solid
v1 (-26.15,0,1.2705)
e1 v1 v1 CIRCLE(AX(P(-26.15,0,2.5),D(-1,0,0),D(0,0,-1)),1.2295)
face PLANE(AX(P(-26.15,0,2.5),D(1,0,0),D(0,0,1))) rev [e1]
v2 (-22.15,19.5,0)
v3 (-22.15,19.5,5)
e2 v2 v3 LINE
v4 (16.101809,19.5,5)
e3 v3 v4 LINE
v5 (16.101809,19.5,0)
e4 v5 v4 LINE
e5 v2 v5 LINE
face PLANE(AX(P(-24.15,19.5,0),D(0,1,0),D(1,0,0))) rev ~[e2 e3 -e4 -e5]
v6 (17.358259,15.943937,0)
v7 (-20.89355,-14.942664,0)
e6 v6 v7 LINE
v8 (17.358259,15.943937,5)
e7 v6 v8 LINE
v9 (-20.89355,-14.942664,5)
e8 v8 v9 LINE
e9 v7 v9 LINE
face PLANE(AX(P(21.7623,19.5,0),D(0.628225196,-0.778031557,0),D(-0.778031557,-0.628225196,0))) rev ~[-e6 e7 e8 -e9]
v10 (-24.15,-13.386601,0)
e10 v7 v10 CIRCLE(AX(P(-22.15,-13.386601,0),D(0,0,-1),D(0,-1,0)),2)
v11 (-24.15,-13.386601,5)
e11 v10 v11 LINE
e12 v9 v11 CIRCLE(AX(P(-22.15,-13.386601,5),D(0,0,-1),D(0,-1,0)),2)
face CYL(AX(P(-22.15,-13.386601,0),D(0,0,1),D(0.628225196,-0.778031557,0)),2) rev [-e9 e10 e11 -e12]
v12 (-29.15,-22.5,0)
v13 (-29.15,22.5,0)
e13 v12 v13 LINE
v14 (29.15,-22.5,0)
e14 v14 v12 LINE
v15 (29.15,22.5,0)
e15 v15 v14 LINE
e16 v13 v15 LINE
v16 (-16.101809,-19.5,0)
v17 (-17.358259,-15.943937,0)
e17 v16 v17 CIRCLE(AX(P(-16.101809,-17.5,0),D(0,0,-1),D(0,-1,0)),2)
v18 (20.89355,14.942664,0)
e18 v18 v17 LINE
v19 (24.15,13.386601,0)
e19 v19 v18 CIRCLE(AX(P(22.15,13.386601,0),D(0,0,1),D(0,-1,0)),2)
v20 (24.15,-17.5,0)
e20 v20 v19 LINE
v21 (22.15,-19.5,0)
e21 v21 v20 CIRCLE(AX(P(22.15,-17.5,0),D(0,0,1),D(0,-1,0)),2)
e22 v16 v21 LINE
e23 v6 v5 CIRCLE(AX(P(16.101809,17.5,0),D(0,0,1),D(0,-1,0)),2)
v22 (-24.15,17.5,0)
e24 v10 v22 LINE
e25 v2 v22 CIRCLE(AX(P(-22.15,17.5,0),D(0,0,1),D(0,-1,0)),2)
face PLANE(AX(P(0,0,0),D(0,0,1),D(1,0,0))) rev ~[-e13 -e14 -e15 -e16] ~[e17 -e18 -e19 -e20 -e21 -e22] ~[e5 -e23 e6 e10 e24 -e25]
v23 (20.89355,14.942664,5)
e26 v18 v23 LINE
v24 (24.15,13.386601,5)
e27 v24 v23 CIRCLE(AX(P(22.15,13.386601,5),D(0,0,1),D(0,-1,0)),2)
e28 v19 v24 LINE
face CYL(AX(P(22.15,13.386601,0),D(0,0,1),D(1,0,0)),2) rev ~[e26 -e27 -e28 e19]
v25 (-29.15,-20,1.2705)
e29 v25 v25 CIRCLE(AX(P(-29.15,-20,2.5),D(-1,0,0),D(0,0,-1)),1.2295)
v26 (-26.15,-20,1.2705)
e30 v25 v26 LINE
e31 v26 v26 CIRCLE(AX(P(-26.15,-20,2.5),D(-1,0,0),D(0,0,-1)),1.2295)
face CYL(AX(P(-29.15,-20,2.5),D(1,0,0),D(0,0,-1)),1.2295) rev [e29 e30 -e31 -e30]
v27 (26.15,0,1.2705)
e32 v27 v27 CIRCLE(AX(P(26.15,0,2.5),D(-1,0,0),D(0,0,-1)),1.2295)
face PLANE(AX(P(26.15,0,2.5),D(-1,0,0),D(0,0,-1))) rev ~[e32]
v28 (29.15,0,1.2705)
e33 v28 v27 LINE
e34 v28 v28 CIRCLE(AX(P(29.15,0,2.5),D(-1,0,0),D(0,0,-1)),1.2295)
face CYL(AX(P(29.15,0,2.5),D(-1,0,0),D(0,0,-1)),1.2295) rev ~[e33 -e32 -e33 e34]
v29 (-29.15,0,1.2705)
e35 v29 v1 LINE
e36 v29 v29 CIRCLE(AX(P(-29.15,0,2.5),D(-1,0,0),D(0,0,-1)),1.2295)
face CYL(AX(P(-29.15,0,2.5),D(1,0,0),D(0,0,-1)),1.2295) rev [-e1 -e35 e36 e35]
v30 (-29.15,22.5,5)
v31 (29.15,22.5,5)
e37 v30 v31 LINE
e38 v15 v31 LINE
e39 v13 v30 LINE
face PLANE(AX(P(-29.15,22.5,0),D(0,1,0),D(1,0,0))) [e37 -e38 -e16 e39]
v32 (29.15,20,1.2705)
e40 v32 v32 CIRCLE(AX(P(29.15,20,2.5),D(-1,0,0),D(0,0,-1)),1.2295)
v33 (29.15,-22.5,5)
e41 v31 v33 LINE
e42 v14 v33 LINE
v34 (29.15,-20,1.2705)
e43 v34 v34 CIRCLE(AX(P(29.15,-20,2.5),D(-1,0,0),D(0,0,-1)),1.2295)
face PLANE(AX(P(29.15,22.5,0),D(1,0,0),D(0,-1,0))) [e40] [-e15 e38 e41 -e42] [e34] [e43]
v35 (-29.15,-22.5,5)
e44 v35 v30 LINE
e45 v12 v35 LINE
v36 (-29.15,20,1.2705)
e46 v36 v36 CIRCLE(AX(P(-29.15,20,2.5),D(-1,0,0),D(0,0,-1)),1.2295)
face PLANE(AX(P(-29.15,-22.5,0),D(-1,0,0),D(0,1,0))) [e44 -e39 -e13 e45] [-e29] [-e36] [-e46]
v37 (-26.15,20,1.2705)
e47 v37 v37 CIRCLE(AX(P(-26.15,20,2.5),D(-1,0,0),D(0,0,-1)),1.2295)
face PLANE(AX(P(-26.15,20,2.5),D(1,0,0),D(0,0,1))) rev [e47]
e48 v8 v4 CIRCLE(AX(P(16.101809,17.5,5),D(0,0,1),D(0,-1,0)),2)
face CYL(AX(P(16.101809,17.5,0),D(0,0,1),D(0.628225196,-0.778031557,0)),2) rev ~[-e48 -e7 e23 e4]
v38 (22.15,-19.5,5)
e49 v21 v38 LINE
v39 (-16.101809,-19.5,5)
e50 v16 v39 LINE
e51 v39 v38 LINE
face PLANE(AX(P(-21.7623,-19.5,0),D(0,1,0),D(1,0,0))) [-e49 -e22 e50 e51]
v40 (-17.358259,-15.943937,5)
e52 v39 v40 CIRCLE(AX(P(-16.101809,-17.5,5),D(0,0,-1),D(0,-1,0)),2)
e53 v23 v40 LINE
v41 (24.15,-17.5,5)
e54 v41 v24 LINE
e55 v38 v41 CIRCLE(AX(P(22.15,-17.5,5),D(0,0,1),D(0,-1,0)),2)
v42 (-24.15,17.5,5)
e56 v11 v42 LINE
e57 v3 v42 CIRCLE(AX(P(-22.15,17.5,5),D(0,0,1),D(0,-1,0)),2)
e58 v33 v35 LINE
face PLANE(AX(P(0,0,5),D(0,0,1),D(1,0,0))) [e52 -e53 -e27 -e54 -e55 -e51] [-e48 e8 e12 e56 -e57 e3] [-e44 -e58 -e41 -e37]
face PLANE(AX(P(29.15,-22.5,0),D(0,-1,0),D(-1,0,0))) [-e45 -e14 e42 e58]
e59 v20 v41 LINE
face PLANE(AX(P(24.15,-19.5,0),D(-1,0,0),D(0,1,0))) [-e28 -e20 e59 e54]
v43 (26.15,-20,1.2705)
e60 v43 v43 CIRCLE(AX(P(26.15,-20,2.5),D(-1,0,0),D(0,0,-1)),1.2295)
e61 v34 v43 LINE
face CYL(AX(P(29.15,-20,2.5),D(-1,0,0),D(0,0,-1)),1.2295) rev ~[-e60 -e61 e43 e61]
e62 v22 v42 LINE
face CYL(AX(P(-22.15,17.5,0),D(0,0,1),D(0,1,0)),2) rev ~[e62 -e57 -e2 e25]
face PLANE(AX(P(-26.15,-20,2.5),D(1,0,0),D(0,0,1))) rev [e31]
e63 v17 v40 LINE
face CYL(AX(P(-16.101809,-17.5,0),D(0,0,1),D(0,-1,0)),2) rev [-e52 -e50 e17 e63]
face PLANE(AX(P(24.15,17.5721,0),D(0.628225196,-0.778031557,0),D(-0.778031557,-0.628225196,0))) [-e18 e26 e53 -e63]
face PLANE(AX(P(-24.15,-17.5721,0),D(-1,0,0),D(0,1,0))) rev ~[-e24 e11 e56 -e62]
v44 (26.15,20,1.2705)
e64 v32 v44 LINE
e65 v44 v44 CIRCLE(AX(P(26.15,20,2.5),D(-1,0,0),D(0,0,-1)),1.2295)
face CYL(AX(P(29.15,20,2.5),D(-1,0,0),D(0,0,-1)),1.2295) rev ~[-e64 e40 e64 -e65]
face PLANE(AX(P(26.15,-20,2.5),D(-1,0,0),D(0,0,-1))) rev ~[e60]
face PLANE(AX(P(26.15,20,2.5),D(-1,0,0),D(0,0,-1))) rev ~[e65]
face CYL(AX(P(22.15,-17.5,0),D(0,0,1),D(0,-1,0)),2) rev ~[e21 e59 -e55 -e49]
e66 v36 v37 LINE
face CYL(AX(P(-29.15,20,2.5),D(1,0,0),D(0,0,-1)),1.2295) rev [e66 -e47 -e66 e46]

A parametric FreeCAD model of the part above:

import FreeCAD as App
import Part
import Sketcher
Q = App.Units.Quantity


def edges_at(feature, points):
    """Names of the edges that pass closest to the given points."""
    edges = feature.Shape.Edges
    near = lambda p: min(range(len(edges)), key=lambda i: edges[i].distToShape(Part.Vertex(*p))[0])
    return sorted({f"Edge{near(p) + 1}" for p in points})


def add_polygon(sketch, points):
    """Adds a closed chain of lines whose ends are joined by coincident constraints."""
    first, n = sketch.GeometryCount, len(points)
    for a, b in zip(points, points[1:] + points[:1]):
        sketch.addGeometry(Part.LineSegment(App.Vector(*a, 0), App.Vector(*b, 0)), False)
    for i in range(n):
        sketch.addConstraint(Sketcher.Constraint("Coincident", first + i, 2, first + (i + 1) % n, 1))

doc = App.newDocument("Part")
params = doc.addObject("Spreadsheet::Sheet", "Params")
for row, (alias, value) in enumerate([
    ("sketch1_width", "58.3 mm"),
    ("sketch1_height", "45 mm"),
    ("pad1_length", "5 mm"),
    ("hole_diameter", "2.459 mm"),
    ("hole_depth", "3 mm"),
    ("fillet_radius", "2 mm"),
], start=1):
    params.set(f"A{row}", alias)
    params.set(f"B{row}", "=" + value)
    params.setAlias(f"B{row}", alias)

body = doc.addObject("PartDesign::Body", "Body")

# Sketch on XY plane
sketch1 = doc.addObject("Sketcher::SketchObject", "Sketch")
body.addObject(sketch1)
sketch1.AttachmentSupport = (doc.XY_Plane, [""])
sketch1.MapMode = "FlatFace"
add_polygon(sketch1, [(29.15, 22.5), (-29.15, 22.5), (-29.15, -22.5), (29.15, -22.5)])  # lines 0-3
add_polygon(sketch1, [(24.15, -19.5), (-21.7623, -19.5), (24.15, 17.5721)])  # lines 4-6
add_polygon(sketch1, [(21.7623, 19.5), (-24.15, -17.5721), (-24.15, 19.5)])  # lines 7-9
sketch1.addConstraint([
    Sketcher.Constraint("Horizontal", 0),
    Sketcher.Constraint("Vertical", 1),
    Sketcher.Constraint("Horizontal", 2),
    Sketcher.Constraint("Vertical", 3),
    Sketcher.Constraint("Horizontal", 4),
    Sketcher.Constraint("Vertical", 6),
    Sketcher.Constraint("Vertical", 8),
    Sketcher.Constraint("Horizontal", 9),
    Sketcher.Constraint("Symmetric", 0, 2, 2, 2, -1, 1),
    Sketcher.Constraint("Symmetric", 5, 2, 7, 2, -1, 1),
    Sketcher.Constraint("Symmetric", 4, 2, 9, 2, -1, 1),
    Sketcher.Constraint("DistanceX", 0, 2, 0, 1, Q("58.3 mm")),
    Sketcher.Constraint("DistanceY", 1, 2, 4, 2, Q("3 mm")),
    Sketcher.Constraint("DistanceX", 5, 2, 3, 2, Q("5 mm")),
    Sketcher.Constraint("DistanceY", 1, 2, 1, 1, Q("45 mm")),
    Sketcher.Constraint("Angle", 5, Q("38.9193 deg")),
    Sketcher.Constraint("DistanceY", 6, 2, 6, 1, Q("37.072 mm")),
])
sketch1.setExpression("Constraints[21]", "Params.sketch1_width")
sketch1.setExpression("Constraints[24]", "Params.sketch1_height")
pad1 = doc.addObject("PartDesign::Pad", "Pad")
body.addObject(pad1)
pad1.Profile = sketch1
pad1.setExpression("Length", "Params.pad1_length")

# Sketch on YZ plane
sketch2 = doc.addObject("Sketcher::SketchObject", "Sketch001")
body.addObject(sketch2)
sketch2.AttachmentSupport = (doc.YZ_Plane, [""])
sketch2.MapMode = "FlatFace"
sketch2.AttachmentOffset = App.Placement(App.Vector(0, 0, 29.15), App.Rotation())
sketch2.addGeometry([
    Part.Circle(App.Vector(-20, 2.5, 0), App.Vector(0, 0, 1), 1.2295),
    Part.Circle(App.Vector(0, 2.5, 0), App.Vector(0, 0, 1), 1.2295),
    Part.Circle(App.Vector(20, 2.5, 0), App.Vector(0, 0, 1), 1.2295),
], False)
sketch2.addConstraint([
    Sketcher.Constraint("Equal", 0, 1),
    Sketcher.Constraint("Equal", 1, 2),
    Sketcher.Constraint("Symmetric", 0, 3, 2, 3, -2),
    Sketcher.Constraint("PointOnObject", 1, 3, -2),
    Sketcher.Constraint("Horizontal", 0, 3, 1, 3),
    Sketcher.Constraint("Diameter", 0, Q("2.459 mm")),
    Sketcher.Constraint("DistanceX", 0, 3, -1, 1, Q("20 mm")),
    Sketcher.Constraint("DistanceY", -1, 1, 0, 3, Q("2.5 mm")),
])
doc.recompute()
hole = doc.addObject("PartDesign::Hole", "Hole")
body.addObject(hole)
hole.Profile = sketch2
hole.ThreadType = "None"
hole.setExpression("Diameter", "Params.hole_diameter")
hole.DepthType = "Dimension"
hole.setExpression("Depth", "Params.hole_depth")
hole.DrillPoint = "Flat"
doc.recompute()

mirrored = doc.addObject("PartDesign::Mirrored", "Mirrored")
body.addObject(mirrored)
mirrored.Originals = [hole]
mirrored.MirrorPlane = (doc.YZ_Plane, [""])
body.Tip = mirrored
doc.recompute()

fillet = doc.addObject("PartDesign::Fillet", "Fillet")
body.addObject(fillet)
fillet.Base = (mirrored, edges_at(mirrored, [
    (-21.762, -19.5, 2.5),
    (-24.15, -17.572, 2.5),
    (24.15, 17.572, 2.5),
    (24.15, -19.5, 2.5),
    (-24.15, 19.5, 2.5),
    (21.762, 19.5, 2.5),
]))
fillet.setExpression("Radius", "Params.fillet_radius")

doc.recompute()
